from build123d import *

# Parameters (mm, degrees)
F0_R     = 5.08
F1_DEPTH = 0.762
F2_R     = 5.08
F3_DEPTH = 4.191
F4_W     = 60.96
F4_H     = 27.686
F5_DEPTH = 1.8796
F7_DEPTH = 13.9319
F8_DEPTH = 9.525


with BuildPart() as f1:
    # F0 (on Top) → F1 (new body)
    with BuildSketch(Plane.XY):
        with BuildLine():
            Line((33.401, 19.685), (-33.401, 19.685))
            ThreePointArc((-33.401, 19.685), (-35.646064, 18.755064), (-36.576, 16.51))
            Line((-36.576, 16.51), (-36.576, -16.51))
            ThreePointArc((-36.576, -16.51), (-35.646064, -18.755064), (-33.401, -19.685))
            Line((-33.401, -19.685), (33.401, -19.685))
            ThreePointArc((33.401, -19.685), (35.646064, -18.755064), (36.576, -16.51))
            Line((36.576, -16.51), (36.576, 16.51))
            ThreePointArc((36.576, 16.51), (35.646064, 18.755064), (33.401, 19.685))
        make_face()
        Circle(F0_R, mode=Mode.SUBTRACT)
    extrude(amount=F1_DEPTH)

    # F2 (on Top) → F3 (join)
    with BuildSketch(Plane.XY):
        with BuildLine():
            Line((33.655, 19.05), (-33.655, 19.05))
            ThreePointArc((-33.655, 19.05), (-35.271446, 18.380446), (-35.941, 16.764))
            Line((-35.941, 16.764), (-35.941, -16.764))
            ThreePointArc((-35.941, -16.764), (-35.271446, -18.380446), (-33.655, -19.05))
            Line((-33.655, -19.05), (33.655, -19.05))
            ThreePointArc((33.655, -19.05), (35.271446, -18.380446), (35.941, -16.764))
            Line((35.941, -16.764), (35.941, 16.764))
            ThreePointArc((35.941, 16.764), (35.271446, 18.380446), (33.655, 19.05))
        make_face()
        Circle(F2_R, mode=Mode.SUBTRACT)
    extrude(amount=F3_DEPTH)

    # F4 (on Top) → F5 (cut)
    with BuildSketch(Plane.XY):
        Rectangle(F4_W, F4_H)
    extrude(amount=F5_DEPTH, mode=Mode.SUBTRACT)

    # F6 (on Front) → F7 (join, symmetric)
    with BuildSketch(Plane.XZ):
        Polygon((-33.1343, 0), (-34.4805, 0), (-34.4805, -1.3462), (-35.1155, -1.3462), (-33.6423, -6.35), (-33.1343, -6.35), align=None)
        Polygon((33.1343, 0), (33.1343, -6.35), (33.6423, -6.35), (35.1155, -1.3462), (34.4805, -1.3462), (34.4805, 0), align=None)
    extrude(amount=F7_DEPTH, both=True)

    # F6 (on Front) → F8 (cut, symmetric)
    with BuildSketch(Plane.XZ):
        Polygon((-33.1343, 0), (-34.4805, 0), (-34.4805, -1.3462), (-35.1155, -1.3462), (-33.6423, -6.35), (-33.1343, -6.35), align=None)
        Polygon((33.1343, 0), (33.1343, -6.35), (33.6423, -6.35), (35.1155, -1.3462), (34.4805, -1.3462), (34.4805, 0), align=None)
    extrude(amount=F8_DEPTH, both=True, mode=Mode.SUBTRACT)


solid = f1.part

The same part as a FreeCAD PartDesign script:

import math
import FreeCAD as App
import Part
import Sketcher

V = App.Vector
Q = App.Units.Quantity

doc = App.newDocument("Part")
params = doc.addObject("Spreadsheet::Sheet", "Params")
for row, (alias, value) in enumerate([
    ("sketch1_diameter", "0.4 in"),
    ("sketch1_height", "1.3 in"),
    ("sketch1_radius", "0.125 in"),
    ("sketch1_width", "2.63 in"),
    ("pad1_length", "0.03 in"),
    ("sketch2_diameter", "0.4 in"),
    ("sketch2_radius", "0.09 in"),
    ("sketch2_width", "2.65 in"),
    ("sketch2_height", "1.32 in"),
    ("pad2_length", "0.165 in"),
    ("sketch3_width", "2.4 in"),
    ("sketch3_height", "1.09 in"),
    ("pocket1_length", "0.074 in"),
    ("sketch4_width", "0.02 in"),
    ("sketch4_height", "0.25 in"),
    ("sketch4_width2", "0.053 in"),
    ("sketch4_width3", "0.025 in"),
    ("pad3_length", "1.097 in"),
    ("sketch5_width", "0.02 in"),
    ("sketch5_height", "0.25 in"),
    ("sketch5_width2", "0.053 in"),
    ("sketch5_width3", "0.025 in"),
    ("pocket2_length", "0.75 in"),
], start=1):
    params.set(f"A{row}", alias)
    params.set(f"B{row}", "=" + value)
    params.setAlias(f"B{row}", alias)

body = doc.addObject("PartDesign::Body", "Body")

# Sketch on XY plane
sketch1 = body.newObject("Sketcher::SketchObject", "Sketch")
sketch1.AttachmentSupport = (doc.getObject("XY_Plane"), [""])
sketch1.MapMode = "FlatFace"
sketch1.addGeometry(Part.LineSegment(V(33.401, 19.685, 0), V(-33.401, 19.685, 0)), False)
sketch1.addGeometry(Part.ArcOfCircle(Part.Circle(V(-33.401, 16.51, 0), V(0, 0, 1), 3.175), math.radians(90.000002), math.radians(179.999998)), False)
sketch1.addGeometry(Part.LineSegment(V(-36.576, 16.51, 0), V(-36.576, -16.51, 0)), False)
sketch1.addGeometry(Part.ArcOfCircle(Part.Circle(V(-33.401, -16.51, 0), V(0, 0, 1), 3.175), math.radians(-179.999998), math.radians(-90.000002)), False)
sketch1.addGeometry(Part.LineSegment(V(-33.401, -19.685, 0), V(33.401, -19.685, 0)), False)
sketch1.addGeometry(Part.ArcOfCircle(Part.Circle(V(33.401, -16.51, 0), V(0, 0, 1), 3.175), math.radians(-89.999998), math.radians(-0.000002)), False)
sketch1.addGeometry(Part.LineSegment(V(36.576, -16.51, 0), V(36.576, 16.51, 0)), False)
sketch1.addGeometry(Part.ArcOfCircle(Part.Circle(V(33.401, 16.51, 0), V(0, 0, 1), 3.175), math.radians(0.000002), math.radians(89.999998)), False)
sketch1.addGeometry(Part.Circle(V(0, 0, 0), V(0, 0, 1), 5.08), False)
sketch1.addConstraint(Sketcher.Constraint("Tangent", 0, 2, 1, 1))
sketch1.addConstraint(Sketcher.Constraint("Tangent", 1, 2, 2, 1))
sketch1.addConstraint(Sketcher.Constraint("Tangent", 2, 2, 3, 1))
sketch1.addConstraint(Sketcher.Constraint("Tangent", 3, 2, 4, 1))
sketch1.addConstraint(Sketcher.Constraint("Tangent", 4, 2, 5, 1))
sketch1.addConstraint(Sketcher.Constraint("Tangent", 5, 2, 6, 1))
sketch1.addConstraint(Sketcher.Constraint("Tangent", 6, 2, 7, 1))
sketch1.addConstraint(Sketcher.Constraint("Tangent", 7, 2, 0, 1))
sketch1.addConstraint(Sketcher.Constraint("Horizontal", 0))
sketch1.addConstraint(Sketcher.Constraint("Vertical", 2))
sketch1.addConstraint(Sketcher.Constraint("Horizontal", 4))
sketch1.addConstraint(Sketcher.Constraint("Vertical", 6))
sketch1.addConstraint(Sketcher.Constraint("Coincident", 8, 3, -1, 1))
sketch1.addConstraint(Sketcher.Constraint("Equal", 1, 3))
sketch1.addConstraint(Sketcher.Constraint("Equal", 3, 5))
sketch1.addConstraint(Sketcher.Constraint("Equal", 5, 7))
sketch1.addConstraint(Sketcher.Constraint("Symmetric", 1, 3, 5, 3, -1, 1))
sketch1.addConstraint(Sketcher.Constraint("Diameter", 8, Q("0.4 in")))
sketch1.addConstraint(Sketcher.Constraint("DistanceY", 2, 2, 2, 1, Q("1.3 in")))
sketch1.addConstraint(Sketcher.Constraint("Radius", 1, Q("0.125 in")))
sketch1.addConstraint(Sketcher.Constraint("DistanceX", 0, 2, 0, 1, Q("2.63 in")))
sketch1.setExpression("Constraints[17]", "Params.sketch1_diameter")
sketch1.setExpression("Constraints[18]", "Params.sketch1_height")
sketch1.setExpression("Constraints[19]", "Params.sketch1_radius")
sketch1.setExpression("Constraints[20]", "Params.sketch1_width")
pad1 = body.newObject("PartDesign::Pad", "Pad")
pad1.Profile = sketch1
pad1.setExpression("Length", "Params.pad1_length")

# Sketch on XY plane
sketch2 = body.newObject("Sketcher::SketchObject", "Sketch001")
sketch2.AttachmentSupport = (doc.getObject("XY_Plane"), [""])
sketch2.MapMode = "FlatFace"
sketch2.addGeometry(Part.LineSegment(V(33.655, 19.05, 0), V(-33.655, 19.05, 0)), False)
sketch2.addGeometry(Part.ArcOfCircle(Part.Circle(V(-33.655, 16.764, 0), V(0, 0, 1), 2.286), math.radians(90.000009), math.radians(179.999991)), False)
sketch2.addGeometry(Part.LineSegment(V(-35.941, 16.764, 0), V(-35.941, -16.764, 0)), False)
sketch2.addGeometry(Part.ArcOfCircle(Part.Circle(V(-33.655, -16.764, 0), V(0, 0, 1), 2.286), math.radians(-179.999991), math.radians(-90.000009)), False)
sketch2.addGeometry(Part.LineSegment(V(-33.655, -19.05, 0), V(33.655, -19.05, 0)), False)
sketch2.addGeometry(Part.ArcOfCircle(Part.Circle(V(33.655, -16.764, 0), V(0, 0, 1), 2.286), math.radians(-89.999991), math.radians(-0.000009)), False)
sketch2.addGeometry(Part.LineSegment(V(35.941, -16.764, 0), V(35.941, 16.764, 0)), False)
sketch2.addGeometry(Part.ArcOfCircle(Part.Circle(V(33.655, 16.764, 0), V(0, 0, 1), 2.286), math.radians(0.000009), math.radians(89.999991)), False)
sketch2.addGeometry(Part.Circle(V(0, 0, 0), V(0, 0, 1), 5.08), False)
sketch2.addConstraint(Sketcher.Constraint("Tangent", 0, 2, 1, 1))
sketch2.addConstraint(Sketcher.Constraint("Tangent", 1, 2, 2, 1))
sketch2.addConstraint(Sketcher.Constraint("Tangent", 2, 2, 3, 1))
sketch2.addConstraint(Sketcher.Constraint("Tangent", 3, 2, 4, 1))
sketch2.addConstraint(Sketcher.Constraint("Tangent", 4, 2, 5, 1))
sketch2.addConstraint(Sketcher.Constraint("Tangent", 5, 2, 6, 1))
sketch2.addConstraint(Sketcher.Constraint("Tangent", 6, 2, 7, 1))
sketch2.addConstraint(Sketcher.Constraint("Tangent", 7, 2, 0, 1))
sketch2.addConstraint(Sketcher.Constraint("Horizontal", 0))
sketch2.addConstraint(Sketcher.Constraint("Vertical", 2))
sketch2.addConstraint(Sketcher.Constraint("Horizontal", 4))
sketch2.addConstraint(Sketcher.Constraint("Vertical", 6))
sketch2.addConstraint(Sketcher.Constraint("Coincident", 8, 3, -1, 1))
sketch2.addConstraint(Sketcher.Constraint("Equal", 1, 3))
sketch2.addConstraint(Sketcher.Constraint("Equal", 3, 5))
sketch2.addConstraint(Sketcher.Constraint("Equal", 5, 7))
sketch2.addConstraint(Sketcher.Constraint("Symmetric", 1, 3, 5, 3, -1, 1))
sketch2.addConstraint(Sketcher.Constraint("Diameter", 8, Q("0.4 in")))
sketch2.addConstraint(Sketcher.Constraint("Radius", 1, Q("0.09 in")))
sketch2.addConstraint(Sketcher.Constraint("DistanceX", 0, 2, 0, 1, Q("2.65 in")))
sketch2.addConstraint(Sketcher.Constraint("DistanceY", 2, 2, 2, 1, Q("1.32 in")))
sketch2.setExpression("Constraints[17]", "Params.sketch2_diameter")
sketch2.setExpression("Constraints[18]", "Params.sketch2_radius")
sketch2.setExpression("Constraints[19]", "Params.sketch2_width")
sketch2.setExpression("Constraints[20]", "Params.sketch2_height")
pad2 = body.newObject("PartDesign::Pad", "Pad001")
pad2.Profile = sketch2
pad2.setExpression("Length", "Params.pad2_length")

# Sketch on XY plane
sketch3 = body.newObject("Sketcher::SketchObject", "Sketch002")
sketch3.AttachmentSupport = (doc.getObject("XY_Plane"), [""])
sketch3.MapMode = "FlatFace"
sketch3.addGeometry(Part.LineSegment(V(-30.48, 13.843, 0), V(-30.48, -13.843, 0)), False)
sketch3.addGeometry(Part.LineSegment(V(-30.48, -13.843, 0), V(30.48, -13.843, 0)), False)
sketch3.addGeometry(Part.LineSegment(V(30.48, -13.843, 0), V(30.48, 13.843, 0)), False)
sketch3.addGeometry(Part.LineSegment(V(30.48, 13.843, 0), V(-30.48, 13.843, 0)), False)
sketch3.addConstraint(Sketcher.Constraint("Coincident", 0, 2, 1, 1))
sketch3.addConstraint(Sketcher.Constraint("Coincident", 1, 2, 2, 1))
sketch3.addConstraint(Sketcher.Constraint("Coincident", 2, 2, 3, 1))
sketch3.addConstraint(Sketcher.Constraint("Coincident", 3, 2, 0, 1))
sketch3.addConstraint(Sketcher.Constraint("Vertical", 0))
sketch3.addConstraint(Sketcher.Constraint("Horizontal", 1))
sketch3.addConstraint(Sketcher.Constraint("Vertical", 2))
sketch3.addConstraint(Sketcher.Constraint("Horizontal", 3))
sketch3.addConstraint(Sketcher.Constraint("Symmetric", 0, 2, 2, 2, -1, 1))
sketch3.addConstraint(Sketcher.Constraint("DistanceX", 1, 1, 1, 2, Q("2.4 in")))
sketch3.addConstraint(Sketcher.Constraint("DistanceY", 0, 2, 0, 1, Q("1.09 in")))
sketch3.setExpression("Constraints[9]", "Params.sketch3_width")
sketch3.setExpression("Constraints[10]", "Params.sketch3_height")
pocket1 = body.newObject("PartDesign::Pocket", "Pocket")
pocket1.Profile = sketch3
pocket1.setExpression("Length", "Params.pocket1_length")
pocket1.Reversed = True

# Sketch on XZ plane
sketch4 = body.newObject("Sketcher::SketchObject", "Sketch003")
sketch4.AttachmentSupport = (doc.getObject("XZ_Plane"), [""])
sketch4.MapMode = "FlatFace"
sketch4.addGeometry(Part.LineSegment(V(-33.1343, 0, 0), V(-34.4805, 0, 0)), False)
sketch4.addGeometry(Part.LineSegment(V(-34.4805, 0, 0), V(-34.4805, -1.3462, 0)), False)
sketch4.addGeometry(Part.LineSegment(V(-34.4805, -1.3462, 0), V(-35.1155, -1.3462, 0)), False)
sketch4.addGeometry(Part.LineSegment(V(-35.1155, -1.3462, 0), V(-33.6423, -6.35, 0)), False)
sketch4.addGeometry(Part.LineSegment(V(-33.6423, -6.35, 0), V(-33.1343, -6.35, 0)), False)
sketch4.addGeometry(Part.LineSegment(V(-33.1343, -6.35, 0), V(-33.1343, 0, 0)), False)
sketch4.addGeometry(Part.LineSegment(V(33.1343, 0, 0), V(33.1343, -6.35, 0)), False)
sketch4.addGeometry(Part.LineSegment(V(33.1343, -6.35, 0), V(33.6423, -6.35, 0)), False)
sketch4.addGeometry(Part.LineSegment(V(33.6423, -6.35, 0), V(35.1155, -1.3462, 0)), False)
sketch4.addGeometry(Part.LineSegment(V(35.1155, -1.3462, 0), V(34.4805, -1.3462, 0)), False)
sketch4.addGeometry(Part.LineSegment(V(34.4805, -1.3462, 0), V(34.4805, 0, 0)), False)
sketch4.addGeometry(Part.LineSegment(V(34.4805, 0, 0), V(33.1343, 0, 0)), False)
sketch4.addConstraint(Sketcher.Constraint("Coincident", 0, 2, 1, 1))
sketch4.addConstraint(Sketcher.Constraint("Coincident", 1, 2, 2, 1))
sketch4.addConstraint(Sketcher.Constraint("Coincident", 2, 2, 3, 1))
sketch4.addConstraint(Sketcher.Constraint("Coincident", 3, 2, 4, 1))
sketch4.addConstraint(Sketcher.Constraint("Coincident", 4, 2, 5, 1))
sketch4.addConstraint(Sketcher.Constraint("Coincident", 5, 2, 0, 1))
sketch4.addConstraint(Sketcher.Constraint("Coincident", 6, 2, 7, 1))
sketch4.addConstraint(Sketcher.Constraint("Coincident", 7, 2, 8, 1))
sketch4.addConstraint(Sketcher.Constraint("Coincident", 8, 2, 9, 1))
sketch4.addConstraint(Sketcher.Constraint("Coincident", 9, 2, 10, 1))
sketch4.addConstraint(Sketcher.Constraint("Coincident", 10, 2, 11, 1))
sketch4.addConstraint(Sketcher.Constraint("Coincident", 11, 2, 6, 1))
sketch4.addConstraint(Sketcher.Constraint("Horizontal", 0))
sketch4.addConstraint(Sketcher.Constraint("Vertical", 1))
sketch4.addConstraint(Sketcher.Constraint("Horizontal", 2))
sketch4.addConstraint(Sketcher.Constraint("Horizontal", 4))
sketch4.addConstraint(Sketcher.Constraint("Vertical", 5))
sketch4.addConstraint(Sketcher.Constraint("Vertical", 6))
sketch4.addConstraint(Sketcher.Constraint("Horizontal", 7))
sketch4.addConstraint(Sketcher.Constraint("Horizontal", 9))
sketch4.addConstraint(Sketcher.Constraint("Vertical", 10))
sketch4.addConstraint(Sketcher.Constraint("Horizontal", 11))
sketch4.addConstraint(Sketcher.Constraint("Symmetric", 0, 2, 10, 2, -1, 1))
sketch4.addConstraint(Sketcher.Constraint("Symmetric", 4, 2, 6, 2, -2))
sketch4.addConstraint(Sketcher.Constraint("Symmetric", 2, 2, 8, 2, -2))
sketch4.addConstraint(Sketcher.Constraint("PointOnObject", 0, 2, -1))
sketch4.addConstraint(Sketcher.Constraint("Equal", 4, 7))
sketch4.addConstraint(Sketcher.Constraint("Equal", 11, 1))
sketch4.addConstraint(Sketcher.Constraint("DistanceX", 4, 1, 4, 2, Q("0.02 in")))
sketch4.addConstraint(Sketcher.Constraint("DistanceY", 5, 1, 5, 2, Q("0.25 in")))
sketch4.addConstraint(Sketcher.Constraint("DistanceX", 0, 2, 0, 1, Q("0.053 in")))
sketch4.addConstraint(Sketcher.Constraint("DistanceX", 2, 2, 2, 1, Q("0.025 in")))
sketch4.addConstraint(Sketcher.Constraint("DistanceX", 4, 2, 6, 2, Q("2.609 in")))
sketch4.setExpression("Constraints[28]", "Params.sketch4_width")
sketch4.setExpression("Constraints[29]", "Params.sketch4_height")
sketch4.setExpression("Constraints[30]", "Params.sketch4_width2")
sketch4.setExpression("Constraints[31]", "Params.sketch4_width3")
pad3 = body.newObject("PartDesign::Pad", "Pad002")
pad3.Profile = sketch4
pad3.setExpression("Length", "Params.pad3_length")
pad3.Midplane = True

# Sketch on XZ plane
sketch5 = body.newObject("Sketcher::SketchObject", "Sketch004")
sketch5.AttachmentSupport = (doc.getObject("XZ_Plane"), [""])
sketch5.MapMode = "FlatFace"
sketch5.addGeometry(Part.LineSegment(V(-33.1343, 0, 0), V(-34.4805, 0, 0)), False)
sketch5.addGeometry(Part.LineSegment(V(-34.4805, 0, 0), V(-34.4805, -1.3462, 0)), False)
sketch5.addGeometry(Part.LineSegment(V(-34.4805, -1.3462, 0), V(-35.1155, -1.3462, 0)), False)
sketch5.addGeometry(Part.LineSegment(V(-35.1155, -1.3462, 0), V(-33.6423, -6.35, 0)), False)
sketch5.addGeometry(Part.LineSegment(V(-33.6423, -6.35, 0), V(-33.1343, -6.35, 0)), False)
sketch5.addGeometry(Part.LineSegment(V(-33.1343, -6.35, 0), V(-33.1343, 0, 0)), False)
sketch5.addGeometry(Part.LineSegment(V(33.1343, 0, 0), V(33.1343, -6.35, 0)), False)
sketch5.addGeometry(Part.LineSegment(V(33.1343, -6.35, 0), V(33.6423, -6.35, 0)), False)
sketch5.addGeometry(Part.LineSegment(V(33.6423, -6.35, 0), V(35.1155, -1.3462, 0)), False)
sketch5.addGeometry(Part.LineSegment(V(35.1155, -1.3462, 0), V(34.4805, -1.3462, 0)), False)
sketch5.addGeometry(Part.LineSegment(V(34.4805, -1.3462, 0), V(34.4805, 0, 0)), False)
sketch5.addGeometry(Part.LineSegment(V(34.4805, 0, 0), V(33.1343, 0, 0)), False)
sketch5.addConstraint(Sketcher.Constraint("Coincident", 0, 2, 1, 1))
sketch5.addConstraint(Sketcher.Constraint("Coincident", 1, 2, 2, 1))
sketch5.addConstraint(Sketcher.Constraint("Coincident", 2, 2, 3, 1))
sketch5.addConstraint(Sketcher.Constraint("Coincident", 3, 2, 4, 1))
sketch5.addConstraint(Sketcher.Constraint("Coincident", 4, 2, 5, 1))
sketch5.addConstraint(Sketcher.Constraint("Coincident", 5, 2, 0, 1))
sketch5.addConstraint(Sketcher.Constraint("Coincident", 6, 2, 7, 1))
sketch5.addConstraint(Sketcher.Constraint("Coincident", 7, 2, 8, 1))
sketch5.addConstraint(Sketcher.Constraint("Coincident", 8, 2, 9, 1))
sketch5.addConstraint(Sketcher.Constraint("Coincident", 9, 2, 10, 1))
sketch5.addConstraint(Sketcher.Constraint("Coincident", 10, 2, 11, 1))
sketch5.addConstraint(Sketcher.Constraint("Coincident", 11, 2, 6, 1))
sketch5.addConstraint(Sketcher.Constraint("Horizontal", 0))
sketch5.addConstraint(Sketcher.Constraint("Vertical", 1))
sketch5.addConstraint(Sketcher.Constraint("Horizontal", 2))
sketch5.addConstraint(Sketcher.Constraint("Horizontal", 4))
sketch5.addConstraint(Sketcher.Constraint("Vertical", 5))
sketch5.addConstraint(Sketcher.Constraint("Vertical", 6))
sketch5.addConstraint(Sketcher.Constraint("Horizontal", 7))
sketch5.addConstraint(Sketcher.Constraint("Horizontal", 9))
sketch5.addConstraint(Sketcher.Constraint("Vertical", 10))
sketch5.addConstraint(Sketcher.Constraint("Horizontal", 11))
sketch5.addConstraint(Sketcher.Constraint("Symmetric", 0, 2, 10, 2, -1, 1))
sketch5.addConstraint(Sketcher.Constraint("Symmetric", 4, 2, 6, 2, -2))
sketch5.addConstraint(Sketcher.Constraint("Symmetric", 2, 2, 8, 2, -2))
sketch5.addConstraint(Sketcher.Constraint("PointOnObject", 0, 2, -1))
sketch5.addConstraint(Sketcher.Constraint("Equal", 4, 7))
sketch5.addConstraint(Sketcher.Constraint("Equal", 11, 1))
sketch5.addConstraint(Sketcher.Constraint("DistanceX", 4, 1, 4, 2, Q("0.02 in")))
sketch5.addConstraint(Sketcher.Constraint("DistanceY", 5, 1, 5, 2, Q("0.25 in")))
sketch5.addConstraint(Sketcher.Constraint("DistanceX", 0, 2, 0, 1, Q("0.053 in")))
sketch5.addConstraint(Sketcher.Constraint("DistanceX", 2, 2, 2, 1, Q("0.025 in")))
sketch5.addConstraint(Sketcher.Constraint("DistanceX", 4, 2, 6, 2, Q("2.609 in")))
sketch5.setExpression("Constraints[28]", "Params.sketch5_width")
sketch5.setExpression("Constraints[29]", "Params.sketch5_height")
sketch5.setExpression("Constraints[30]", "Params.sketch5_width2")
sketch5.setExpression("Constraints[31]", "Params.sketch5_width3")
pocket2 = body.newObject("PartDesign::Pocket", "Pocket001")
pocket2.Profile = sketch5
pocket2.setExpression("Length", "Params.pocket2_length")
pocket2.Midplane = True

doc.recompute()
